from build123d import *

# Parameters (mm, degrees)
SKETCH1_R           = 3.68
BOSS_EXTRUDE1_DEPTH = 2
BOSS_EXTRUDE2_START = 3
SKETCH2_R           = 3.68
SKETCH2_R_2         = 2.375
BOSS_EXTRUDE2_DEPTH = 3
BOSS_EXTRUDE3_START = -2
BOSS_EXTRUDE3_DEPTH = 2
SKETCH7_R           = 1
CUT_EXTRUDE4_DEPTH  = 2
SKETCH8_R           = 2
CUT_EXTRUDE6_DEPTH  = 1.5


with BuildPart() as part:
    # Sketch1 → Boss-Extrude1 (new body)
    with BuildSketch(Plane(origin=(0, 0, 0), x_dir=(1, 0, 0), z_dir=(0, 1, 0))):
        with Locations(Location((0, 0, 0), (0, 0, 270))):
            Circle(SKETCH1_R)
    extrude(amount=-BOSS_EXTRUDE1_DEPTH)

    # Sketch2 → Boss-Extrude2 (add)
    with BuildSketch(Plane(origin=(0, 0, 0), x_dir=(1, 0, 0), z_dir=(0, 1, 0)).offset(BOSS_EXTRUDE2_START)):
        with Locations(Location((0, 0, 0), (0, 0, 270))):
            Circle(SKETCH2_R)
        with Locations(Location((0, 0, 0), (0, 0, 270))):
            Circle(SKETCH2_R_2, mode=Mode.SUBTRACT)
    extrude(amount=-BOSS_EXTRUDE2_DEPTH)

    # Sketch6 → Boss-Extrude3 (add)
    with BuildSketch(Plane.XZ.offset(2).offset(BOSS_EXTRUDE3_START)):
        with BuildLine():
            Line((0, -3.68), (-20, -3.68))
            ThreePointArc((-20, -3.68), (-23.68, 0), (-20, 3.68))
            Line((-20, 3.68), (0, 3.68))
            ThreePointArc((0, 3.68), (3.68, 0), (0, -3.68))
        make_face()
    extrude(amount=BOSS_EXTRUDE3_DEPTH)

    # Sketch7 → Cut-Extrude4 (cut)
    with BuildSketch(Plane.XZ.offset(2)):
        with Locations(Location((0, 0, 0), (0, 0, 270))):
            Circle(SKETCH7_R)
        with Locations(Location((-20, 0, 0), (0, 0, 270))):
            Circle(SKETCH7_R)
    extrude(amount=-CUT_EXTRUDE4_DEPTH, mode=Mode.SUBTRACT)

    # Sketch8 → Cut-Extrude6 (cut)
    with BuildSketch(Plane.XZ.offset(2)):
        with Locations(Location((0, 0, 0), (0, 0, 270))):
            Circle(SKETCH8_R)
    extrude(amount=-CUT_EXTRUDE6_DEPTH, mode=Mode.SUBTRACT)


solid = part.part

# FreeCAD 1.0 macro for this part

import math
import FreeCAD as App
import Part
import Sketcher

V = App.Vector
Q = App.Units.Quantity

doc = App.newDocument("Part")
body = doc.addObject("PartDesign::Body", "Body")

sketch1 = body.newObject("Sketcher::SketchObject", "Sketch")
sketch1.AttachmentSupport = (doc.getObject("XZ_Plane"), [""])
sketch1.MapMode = "FlatFace"
sketch1.addGeometry(Part.Circle(V(0, 0, 0), V(0, 0, 1), 3.7), False)
sketch1.addConstraint(Sketcher.Constraint("Coincident", 0, 3, -1, 1))
sketch1.addConstraint(Sketcher.Constraint("Diameter", 0, Q("7.36 mm")))
pad1 = body.newObject("PartDesign::Pad", "Pad")
pad1.Profile = sketch1
pad1.Length = 2

sketch2 = body.newObject("Sketcher::SketchObject", "Sketch001")
sketch2.AttachmentSupport = (doc.getObject("XZ_Plane"), [""])
sketch2.MapMode = "FlatFace"
sketch2.AttachmentOffset = App.Placement(V(0, 0, -3), App.Rotation())
sketch2.addGeometry(Part.Circle(V(0, 0, 0), V(0, 0, 1), 3.7), False)
sketch2.addGeometry(Part.Circle(V(0, 0, 0), V(0, 0, 1), 2.4), False)
sketch2.addConstraint(Sketcher.Constraint("Coincident", 0, 3, -1, 1))
sketch2.addConstraint(Sketcher.Constraint("Coincident", 1, 3, -1, 1))
sketch2.addConstraint(Sketcher.Constraint("Diameter", 0, Q("7.36 mm")))
sketch2.addConstraint(Sketcher.Constraint("Diameter", 1, Q("4.75 mm")))
pad2 = body.newObject("PartDesign::Pad", "Pad001")
pad2.Profile = sketch2
pad2.Length = 3

sketch3 = body.newObject("Sketcher::SketchObject", "Sketch002")
sketch3.AttachmentSupport = (doc.getObject("XZ_Plane"), [""])
sketch3.MapMode = "FlatFace"
sketch3.addGeometry(Part.LineSegment(V(-20, -3.7, 0), V(0, -3.7, 0)), False)
sketch3.addGeometry(Part.ArcOfCircle(Part.Circle(V(0, 0, 0), V(0, 0, 1), 3.7), math.radians(-90), math.radians(90)), False)
sketch3.addGeometry(Part.LineSegment(V(0, 3.7, 0), V(-20, 3.7, 0)), False)
sketch3.addGeometry(Part.ArcOfCircle(Part.Circle(V(-20, 0, 0), V(0, 0, 1), 3.7), math.radians(90), math.radians(270)), False)
sketch3.addConstraint(Sketcher.Constraint("Tangent", 0, 2, 1, 1))
sketch3.addConstraint(Sketcher.Constraint("Tangent", 1, 2, 2, 1))
sketch3.addConstraint(Sketcher.Constraint("Tangent", 2, 2, 3, 1))
sketch3.addConstraint(Sketcher.Constraint("Tangent", 3, 2, 0, 1))
sketch3.addConstraint(Sketcher.Constraint("Horizontal", 0))
sketch3.addConstraint(Sketcher.Constraint("Horizontal", 2))
sketch3.addConstraint(Sketcher.Constraint("Coincident", 1, 3, -1, 1))
sketch3.addConstraint(Sketcher.Constraint("DistanceX", 0, 1, 0, 2, Q("20 mm")))
sketch3.addConstraint(Sketcher.Constraint("Radius", 1, Q("3.68 mm")))
pad3 = body.newObject("PartDesign::Pad", "Pad002")
pad3.Profile = sketch3
pad3.Length = 2

sketch4 = body.newObject("Sketcher::SketchObject", "Sketch003")
sketch4.AttachmentSupport = (doc.getObject("XZ_Plane"), [""])
sketch4.MapMode = "FlatFace"
sketch4.AttachmentOffset = App.Placement(V(0, 0, 2), App.Rotation())
sketch4.addGeometry(Part.Circle(V(0, 0, 0), V(0, 0, 1), 1), False)
sketch4.addGeometry(Part.Circle(V(-20, 0, 0), V(0, 0, 1), 1), False)
sketch4.addConstraint(Sketcher.Constraint("Coincident", 0, 3, -1, 1))
sketch4.addConstraint(Sketcher.Constraint("Equal", 0, 1))
sketch4.addConstraint(Sketcher.Constraint("PointOnObject", 1, 3, -1))
sketch4.addConstraint(Sketcher.Constraint("Diameter", 0, Q("2 mm")))
sketch4.addConstraint(Sketcher.Constraint("DistanceX", 1, 3, -1, 1, Q("20 mm")))
pocket1 = body.newObject("PartDesign::Pocket", "Pocket")
pocket1.Profile = sketch4
pocket1.Length = 2

sketch5 = body.newObject("Sketcher::SketchObject", "Sketch004")
sketch5.AttachmentSupport = (doc.getObject("XZ_Plane"), [""])
sketch5.MapMode = "FlatFace"
sketch5.AttachmentOffset = App.Placement(V(0, 0, 2), App.Rotation())
sketch5.addGeometry(Part.Circle(V(0, 0, 0), V(0, 0, 1), 2), False)
sketch5.addConstraint(Sketcher.Constraint("Coincident", 0, 3, -1, 1))
sketch5.addConstraint(Sketcher.Constraint("Diameter", 0, Q("4 mm")))
pocket2 = body.newObject("PartDesign::Pocket", "Pocket001")
pocket2.Profile = sketch5
pocket2.Length = 1.5

doc.recompute()
